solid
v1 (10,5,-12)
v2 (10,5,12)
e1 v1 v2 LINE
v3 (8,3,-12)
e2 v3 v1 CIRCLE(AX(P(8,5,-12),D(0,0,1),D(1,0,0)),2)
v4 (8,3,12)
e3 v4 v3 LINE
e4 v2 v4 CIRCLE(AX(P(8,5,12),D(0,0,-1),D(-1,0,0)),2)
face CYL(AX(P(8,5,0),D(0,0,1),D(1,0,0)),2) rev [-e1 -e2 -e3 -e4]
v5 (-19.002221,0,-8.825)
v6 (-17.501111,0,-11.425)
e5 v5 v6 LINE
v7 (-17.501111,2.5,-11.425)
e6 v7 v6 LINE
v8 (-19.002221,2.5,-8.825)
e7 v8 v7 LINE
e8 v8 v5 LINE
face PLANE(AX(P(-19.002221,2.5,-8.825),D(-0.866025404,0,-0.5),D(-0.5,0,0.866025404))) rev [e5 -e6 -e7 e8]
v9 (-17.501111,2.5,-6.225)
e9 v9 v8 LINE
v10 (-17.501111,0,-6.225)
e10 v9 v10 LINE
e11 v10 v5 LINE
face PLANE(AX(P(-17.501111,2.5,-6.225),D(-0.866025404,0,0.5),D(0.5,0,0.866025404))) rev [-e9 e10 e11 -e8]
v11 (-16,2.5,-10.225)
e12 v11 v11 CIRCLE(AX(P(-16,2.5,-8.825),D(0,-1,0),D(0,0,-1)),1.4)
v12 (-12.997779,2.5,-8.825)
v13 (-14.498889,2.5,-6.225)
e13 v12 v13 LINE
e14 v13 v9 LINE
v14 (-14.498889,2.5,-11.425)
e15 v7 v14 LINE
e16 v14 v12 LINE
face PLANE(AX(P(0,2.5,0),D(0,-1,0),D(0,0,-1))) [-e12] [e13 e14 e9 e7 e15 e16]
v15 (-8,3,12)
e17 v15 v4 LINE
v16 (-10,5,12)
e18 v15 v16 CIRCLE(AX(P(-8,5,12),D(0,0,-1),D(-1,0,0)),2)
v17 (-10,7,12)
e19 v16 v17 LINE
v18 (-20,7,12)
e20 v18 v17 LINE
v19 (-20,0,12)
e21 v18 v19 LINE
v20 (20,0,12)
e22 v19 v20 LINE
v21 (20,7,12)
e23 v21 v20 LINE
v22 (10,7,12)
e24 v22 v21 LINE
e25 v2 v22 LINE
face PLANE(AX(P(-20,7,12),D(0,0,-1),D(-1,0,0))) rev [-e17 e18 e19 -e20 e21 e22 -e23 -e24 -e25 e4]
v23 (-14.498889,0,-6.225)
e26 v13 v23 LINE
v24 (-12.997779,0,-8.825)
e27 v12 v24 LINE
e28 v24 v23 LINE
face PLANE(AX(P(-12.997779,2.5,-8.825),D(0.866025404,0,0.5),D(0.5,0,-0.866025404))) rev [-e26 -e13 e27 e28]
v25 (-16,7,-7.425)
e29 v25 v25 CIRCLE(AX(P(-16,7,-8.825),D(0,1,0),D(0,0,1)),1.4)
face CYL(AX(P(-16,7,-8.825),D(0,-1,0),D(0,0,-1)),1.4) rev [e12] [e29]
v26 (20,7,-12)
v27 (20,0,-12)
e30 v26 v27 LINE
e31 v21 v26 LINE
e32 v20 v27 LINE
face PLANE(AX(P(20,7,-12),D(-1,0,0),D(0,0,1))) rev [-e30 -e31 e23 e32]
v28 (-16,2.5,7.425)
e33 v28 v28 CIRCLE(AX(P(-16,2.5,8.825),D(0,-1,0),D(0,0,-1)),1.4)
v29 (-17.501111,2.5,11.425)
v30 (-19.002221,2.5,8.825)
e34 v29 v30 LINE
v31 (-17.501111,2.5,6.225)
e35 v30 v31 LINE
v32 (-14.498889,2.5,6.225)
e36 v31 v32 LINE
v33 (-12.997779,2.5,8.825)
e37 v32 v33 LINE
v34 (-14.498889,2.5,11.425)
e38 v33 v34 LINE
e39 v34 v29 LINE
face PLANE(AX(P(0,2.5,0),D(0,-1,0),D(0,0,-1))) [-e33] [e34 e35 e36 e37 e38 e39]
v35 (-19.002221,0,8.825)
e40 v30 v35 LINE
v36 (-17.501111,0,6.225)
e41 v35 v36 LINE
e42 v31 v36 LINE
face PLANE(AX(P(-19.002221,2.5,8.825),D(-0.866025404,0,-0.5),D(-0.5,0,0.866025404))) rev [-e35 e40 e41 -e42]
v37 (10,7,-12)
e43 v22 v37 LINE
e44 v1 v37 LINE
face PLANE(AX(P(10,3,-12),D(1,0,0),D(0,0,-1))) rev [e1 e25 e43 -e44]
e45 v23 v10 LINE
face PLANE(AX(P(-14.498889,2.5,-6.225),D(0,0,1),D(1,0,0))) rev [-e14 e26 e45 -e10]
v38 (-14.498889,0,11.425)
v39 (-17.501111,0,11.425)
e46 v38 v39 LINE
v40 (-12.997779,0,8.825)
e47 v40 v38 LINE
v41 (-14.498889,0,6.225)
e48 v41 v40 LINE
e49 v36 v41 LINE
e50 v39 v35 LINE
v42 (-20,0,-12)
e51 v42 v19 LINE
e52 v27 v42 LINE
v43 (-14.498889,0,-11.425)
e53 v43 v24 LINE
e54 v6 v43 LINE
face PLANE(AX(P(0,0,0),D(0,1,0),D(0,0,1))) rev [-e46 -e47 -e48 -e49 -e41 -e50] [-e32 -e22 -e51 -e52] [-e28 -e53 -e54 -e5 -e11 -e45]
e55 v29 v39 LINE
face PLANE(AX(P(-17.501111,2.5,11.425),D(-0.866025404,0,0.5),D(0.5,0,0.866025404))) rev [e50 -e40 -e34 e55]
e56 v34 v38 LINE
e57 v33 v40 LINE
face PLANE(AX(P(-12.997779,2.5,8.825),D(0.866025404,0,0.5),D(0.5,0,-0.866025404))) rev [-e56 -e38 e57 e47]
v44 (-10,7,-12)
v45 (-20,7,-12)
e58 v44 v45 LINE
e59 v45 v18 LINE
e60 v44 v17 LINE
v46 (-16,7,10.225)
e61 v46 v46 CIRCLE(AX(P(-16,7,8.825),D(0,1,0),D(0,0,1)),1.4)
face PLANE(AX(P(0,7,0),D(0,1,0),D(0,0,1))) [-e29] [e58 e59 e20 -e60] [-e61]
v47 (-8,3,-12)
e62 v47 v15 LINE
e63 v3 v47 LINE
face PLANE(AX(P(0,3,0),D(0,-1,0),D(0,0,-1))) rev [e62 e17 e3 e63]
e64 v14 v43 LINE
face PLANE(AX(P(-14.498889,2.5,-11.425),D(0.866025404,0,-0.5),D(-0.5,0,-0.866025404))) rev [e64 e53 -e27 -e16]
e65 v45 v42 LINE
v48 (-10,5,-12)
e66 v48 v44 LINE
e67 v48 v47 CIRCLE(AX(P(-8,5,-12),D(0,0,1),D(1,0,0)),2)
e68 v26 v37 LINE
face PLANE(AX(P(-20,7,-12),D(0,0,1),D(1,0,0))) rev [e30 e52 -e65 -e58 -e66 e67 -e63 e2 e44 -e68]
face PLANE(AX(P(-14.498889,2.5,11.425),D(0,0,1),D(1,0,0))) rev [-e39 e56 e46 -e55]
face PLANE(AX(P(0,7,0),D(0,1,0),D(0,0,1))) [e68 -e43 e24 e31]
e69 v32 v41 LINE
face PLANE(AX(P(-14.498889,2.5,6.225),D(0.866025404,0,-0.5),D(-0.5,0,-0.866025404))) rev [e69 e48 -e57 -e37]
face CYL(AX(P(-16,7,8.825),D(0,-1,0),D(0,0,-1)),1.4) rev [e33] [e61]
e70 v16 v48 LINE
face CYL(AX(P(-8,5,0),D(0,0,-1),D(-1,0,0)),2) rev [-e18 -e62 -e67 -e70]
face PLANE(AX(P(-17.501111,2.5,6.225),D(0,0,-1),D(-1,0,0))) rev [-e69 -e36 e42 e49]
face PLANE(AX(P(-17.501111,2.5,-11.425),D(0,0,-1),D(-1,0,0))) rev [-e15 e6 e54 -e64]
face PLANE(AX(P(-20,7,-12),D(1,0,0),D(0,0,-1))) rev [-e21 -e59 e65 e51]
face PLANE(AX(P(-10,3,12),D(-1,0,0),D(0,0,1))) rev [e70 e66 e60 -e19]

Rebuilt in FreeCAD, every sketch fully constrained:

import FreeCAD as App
import Part
import Sketcher

V = App.Vector
Q = App.Units.Quantity


def edges_at(feature, points):
    """Names of the edges that pass closest to the given points."""
    edges = feature.Shape.Edges
    near = lambda p: min(range(len(edges)), key=lambda i: edges[i].distToShape(Part.Vertex(*p))[0])
    return sorted({f"Edge{near(p) + 1}" for p in points})

doc = App.newDocument("Part")
body = doc.addObject("PartDesign::Body", "Body")

sketch1 = body.newObject("Sketcher::SketchObject", "Sketch")
sketch1.AttachmentSupport = (doc.getObject("XZ_Plane"), [""])
sketch1.MapMode = "FlatFace"
sketch1.addGeometry([
    Part.LineSegment(V(-20, -12, 0), V(-20, 12, 0)),
    Part.LineSegment(V(-20, 12, 0), V(20, 12, 0)),
    Part.LineSegment(V(20, 12, 0), V(20, -12, 0)),
    Part.LineSegment(V(20, -12, 0), V(-20, -12, 0)),
    Part.Circle(V(-16, 8.8, 0), V(0, 0, 1), 1.4),
    Part.Circle(V(-16, -8.8, 0), V(0, 0, 1), 1.4),
], False)
sketch1.addConstraint([
    Sketcher.Constraint("Coincident", 0, 2, 1, 1),
    Sketcher.Constraint("Coincident", 1, 2, 2, 1),
    Sketcher.Constraint("Coincident", 2, 2, 3, 1),
    Sketcher.Constraint("Coincident", 3, 2, 0, 1),
    Sketcher.Constraint("Vertical", 0),
    Sketcher.Constraint("Horizontal", 1),
    Sketcher.Constraint("Vertical", 2),
    Sketcher.Constraint("Horizontal", 3),
    Sketcher.Constraint("Equal", 4, 5),
    Sketcher.Constraint("Symmetric", 0, 2, 2, 2, -1, 1),
    Sketcher.Constraint("Symmetric", 4, 3, 5, 3, -1),
    Sketcher.Constraint("Diameter", 4, 2.8),
    Sketcher.Constraint("DistanceX", 1, 1, 1, 2, 40.0),
    Sketcher.Constraint("DistanceY", 0, 1, 0, 2, 24.0),
    Sketcher.Constraint("DistanceX", 4, 3, -1, 1, 16.0),
    Sketcher.Constraint("DistanceY", 5, 3, 4, 3, 17.65),
])
pad1 = body.newObject("PartDesign::Pad", "Pad")
pad1.Profile = sketch1
pad1.Length = 7
pad1.Reversed = True

sketch2 = body.newObject("Sketcher::SketchObject", "Sketch001")
sketch2.AttachmentSupport = (doc.getObject("XZ_Plane"), [""])
sketch2.MapMode = "FlatFace"
sketch2.AttachmentOffset = App.Placement(V(0, 0, -7), App.Rotation())
sketch2.addGeometry([
    Part.LineSegment(V(-10, -12, 0), V(-10, 12, 0)),
    Part.LineSegment(V(-10, 12, 0), V(10, 12, 0)),
    Part.LineSegment(V(10, 12, 0), V(10, -12, 0)),
    Part.LineSegment(V(10, -12, 0), V(-10, -12, 0)),
], False)
sketch2.addConstraint([
    Sketcher.Constraint("Coincident", 0, 2, 1, 1),
    Sketcher.Constraint("Coincident", 1, 2, 2, 1),
    Sketcher.Constraint("Coincident", 2, 2, 3, 1),
    Sketcher.Constraint("Coincident", 3, 2, 0, 1),
    Sketcher.Constraint("Vertical", 0),
    Sketcher.Constraint("Horizontal", 1),
    Sketcher.Constraint("Vertical", 2),
    Sketcher.Constraint("Horizontal", 3),
    Sketcher.Constraint("Symmetric", 0, 2, 2, 2, -1, 1),
    Sketcher.Constraint("DistanceX", 1, 1, 1, 2, 20.0),
    Sketcher.Constraint("DistanceY", 0, 1, 0, 2, 24.0),
])
pocket1 = body.newObject("PartDesign::Pocket", "Pocket")
pocket1.Profile = sketch2
pocket1.Length = 4
pocket1.Reversed = True
doc.recompute()

fillet = body.newObject("PartDesign::Fillet", "Fillet")
fillet.Base = (pocket1, edges_at(pocket1, [(-10, 3, 0), (10, 3, 0)]))
fillet.Radius = 2

sketch3 = body.newObject("Sketcher::SketchObject", "Sketch002")
sketch3.AttachmentSupport = (doc.getObject("XZ_Plane"), [""])
sketch3.MapMode = "FlatFace"
sketch3.addGeometry([
    Part.LineSegment(V(-14.5, 6.2, 0), V(-13, 8.8, 0)),
    Part.LineSegment(V(-13, 8.8, 0), V(-14.5, 11.4, 0)),
    Part.LineSegment(V(-14.5, 11.4, 0), V(-17.5, 11.4, 0)),
    Part.LineSegment(V(-17.5, 11.4, 0), V(-19, 8.8, 0)),
    Part.LineSegment(V(-19, 8.8, 0), V(-17.5, 6.2, 0)),
    Part.LineSegment(V(-17.5, 6.2, 0), V(-14.5, 6.2, 0)),
    Part.LineSegment(V(-14.5, -11.4, 0), V(-13, -8.8, 0)),
    Part.LineSegment(V(-13, -8.8, 0), V(-14.5, -6.2, 0)),
    Part.LineSegment(V(-14.5, -6.2, 0), V(-17.5, -6.2, 0)),
    Part.LineSegment(V(-17.5, -6.2, 0), V(-19, -8.8, 0)),
    Part.LineSegment(V(-19, -8.8, 0), V(-17.5, -11.4, 0)),
    Part.LineSegment(V(-17.5, -11.4, 0), V(-14.5, -11.4, 0)),
], False)
sketch3.addConstraint([
    Sketcher.Constraint("Coincident", 0, 2, 1, 1),
    Sketcher.Constraint("Coincident", 1, 2, 2, 1),
    Sketcher.Constraint("Coincident", 2, 2, 3, 1),
    Sketcher.Constraint("Coincident", 3, 2, 4, 1),
    Sketcher.Constraint("Coincident", 4, 2, 5, 1),
    Sketcher.Constraint("Coincident", 5, 2, 0, 1),
    Sketcher.Constraint("Coincident", 6, 2, 7, 1),
    Sketcher.Constraint("Coincident", 7, 2, 8, 1),
    Sketcher.Constraint("Coincident", 8, 2, 9, 1),
    Sketcher.Constraint("Coincident", 9, 2, 10, 1),
    Sketcher.Constraint("Coincident", 10, 2, 11, 1),
    Sketcher.Constraint("Coincident", 11, 2, 6, 1),
    Sketcher.Constraint("Horizontal", 2),
    Sketcher.Constraint("Horizontal", 5),
    Sketcher.Constraint("Horizontal", 8),
    Sketcher.Constraint("Horizontal", 11),
    Sketcher.Constraint("Symmetric", 0, 2, 6, 2, -1),
    Sketcher.Constraint("Symmetric", 5, 2, 7, 2, -1),
    Sketcher.Constraint("Symmetric", 3, 2, 9, 2, -1),
    Sketcher.Constraint("Symmetric", 2, 2, 10, 2, -1),
    Sketcher.Constraint("Parallel", 0, 3),
    Sketcher.Constraint("Parallel", 1, 4),
    Sketcher.Constraint("Parallel", 3, 6),
    Sketcher.Constraint("Parallel", 4, 7),
    Sketcher.Constraint("Parallel", 6, 9),
    Sketcher.Constraint("Horizontal", 0, 2, 3, 2),
    Sketcher.Constraint("Vertical", 2, 2, 4, 2),
    Sketcher.Constraint("Angle", 0, Q("60 deg")),
    Sketcher.Constraint("DistanceY", 0, 2, 1, 2, 2.6),
    Sketcher.Constraint("DistanceY", 6, 2, 5, 2, 15.05),
    Sketcher.Constraint("DistanceX", 2, 2, 2, 1, 3.002221),
    Sketcher.Constraint("DistanceX", 0, 2, -1, 1, 12.997779),
])
pocket2 = body.newObject("PartDesign::Pocket", "Pocket001")
pocket2.Profile = sketch3
pocket2.Length = 2.5

doc.recompute()
